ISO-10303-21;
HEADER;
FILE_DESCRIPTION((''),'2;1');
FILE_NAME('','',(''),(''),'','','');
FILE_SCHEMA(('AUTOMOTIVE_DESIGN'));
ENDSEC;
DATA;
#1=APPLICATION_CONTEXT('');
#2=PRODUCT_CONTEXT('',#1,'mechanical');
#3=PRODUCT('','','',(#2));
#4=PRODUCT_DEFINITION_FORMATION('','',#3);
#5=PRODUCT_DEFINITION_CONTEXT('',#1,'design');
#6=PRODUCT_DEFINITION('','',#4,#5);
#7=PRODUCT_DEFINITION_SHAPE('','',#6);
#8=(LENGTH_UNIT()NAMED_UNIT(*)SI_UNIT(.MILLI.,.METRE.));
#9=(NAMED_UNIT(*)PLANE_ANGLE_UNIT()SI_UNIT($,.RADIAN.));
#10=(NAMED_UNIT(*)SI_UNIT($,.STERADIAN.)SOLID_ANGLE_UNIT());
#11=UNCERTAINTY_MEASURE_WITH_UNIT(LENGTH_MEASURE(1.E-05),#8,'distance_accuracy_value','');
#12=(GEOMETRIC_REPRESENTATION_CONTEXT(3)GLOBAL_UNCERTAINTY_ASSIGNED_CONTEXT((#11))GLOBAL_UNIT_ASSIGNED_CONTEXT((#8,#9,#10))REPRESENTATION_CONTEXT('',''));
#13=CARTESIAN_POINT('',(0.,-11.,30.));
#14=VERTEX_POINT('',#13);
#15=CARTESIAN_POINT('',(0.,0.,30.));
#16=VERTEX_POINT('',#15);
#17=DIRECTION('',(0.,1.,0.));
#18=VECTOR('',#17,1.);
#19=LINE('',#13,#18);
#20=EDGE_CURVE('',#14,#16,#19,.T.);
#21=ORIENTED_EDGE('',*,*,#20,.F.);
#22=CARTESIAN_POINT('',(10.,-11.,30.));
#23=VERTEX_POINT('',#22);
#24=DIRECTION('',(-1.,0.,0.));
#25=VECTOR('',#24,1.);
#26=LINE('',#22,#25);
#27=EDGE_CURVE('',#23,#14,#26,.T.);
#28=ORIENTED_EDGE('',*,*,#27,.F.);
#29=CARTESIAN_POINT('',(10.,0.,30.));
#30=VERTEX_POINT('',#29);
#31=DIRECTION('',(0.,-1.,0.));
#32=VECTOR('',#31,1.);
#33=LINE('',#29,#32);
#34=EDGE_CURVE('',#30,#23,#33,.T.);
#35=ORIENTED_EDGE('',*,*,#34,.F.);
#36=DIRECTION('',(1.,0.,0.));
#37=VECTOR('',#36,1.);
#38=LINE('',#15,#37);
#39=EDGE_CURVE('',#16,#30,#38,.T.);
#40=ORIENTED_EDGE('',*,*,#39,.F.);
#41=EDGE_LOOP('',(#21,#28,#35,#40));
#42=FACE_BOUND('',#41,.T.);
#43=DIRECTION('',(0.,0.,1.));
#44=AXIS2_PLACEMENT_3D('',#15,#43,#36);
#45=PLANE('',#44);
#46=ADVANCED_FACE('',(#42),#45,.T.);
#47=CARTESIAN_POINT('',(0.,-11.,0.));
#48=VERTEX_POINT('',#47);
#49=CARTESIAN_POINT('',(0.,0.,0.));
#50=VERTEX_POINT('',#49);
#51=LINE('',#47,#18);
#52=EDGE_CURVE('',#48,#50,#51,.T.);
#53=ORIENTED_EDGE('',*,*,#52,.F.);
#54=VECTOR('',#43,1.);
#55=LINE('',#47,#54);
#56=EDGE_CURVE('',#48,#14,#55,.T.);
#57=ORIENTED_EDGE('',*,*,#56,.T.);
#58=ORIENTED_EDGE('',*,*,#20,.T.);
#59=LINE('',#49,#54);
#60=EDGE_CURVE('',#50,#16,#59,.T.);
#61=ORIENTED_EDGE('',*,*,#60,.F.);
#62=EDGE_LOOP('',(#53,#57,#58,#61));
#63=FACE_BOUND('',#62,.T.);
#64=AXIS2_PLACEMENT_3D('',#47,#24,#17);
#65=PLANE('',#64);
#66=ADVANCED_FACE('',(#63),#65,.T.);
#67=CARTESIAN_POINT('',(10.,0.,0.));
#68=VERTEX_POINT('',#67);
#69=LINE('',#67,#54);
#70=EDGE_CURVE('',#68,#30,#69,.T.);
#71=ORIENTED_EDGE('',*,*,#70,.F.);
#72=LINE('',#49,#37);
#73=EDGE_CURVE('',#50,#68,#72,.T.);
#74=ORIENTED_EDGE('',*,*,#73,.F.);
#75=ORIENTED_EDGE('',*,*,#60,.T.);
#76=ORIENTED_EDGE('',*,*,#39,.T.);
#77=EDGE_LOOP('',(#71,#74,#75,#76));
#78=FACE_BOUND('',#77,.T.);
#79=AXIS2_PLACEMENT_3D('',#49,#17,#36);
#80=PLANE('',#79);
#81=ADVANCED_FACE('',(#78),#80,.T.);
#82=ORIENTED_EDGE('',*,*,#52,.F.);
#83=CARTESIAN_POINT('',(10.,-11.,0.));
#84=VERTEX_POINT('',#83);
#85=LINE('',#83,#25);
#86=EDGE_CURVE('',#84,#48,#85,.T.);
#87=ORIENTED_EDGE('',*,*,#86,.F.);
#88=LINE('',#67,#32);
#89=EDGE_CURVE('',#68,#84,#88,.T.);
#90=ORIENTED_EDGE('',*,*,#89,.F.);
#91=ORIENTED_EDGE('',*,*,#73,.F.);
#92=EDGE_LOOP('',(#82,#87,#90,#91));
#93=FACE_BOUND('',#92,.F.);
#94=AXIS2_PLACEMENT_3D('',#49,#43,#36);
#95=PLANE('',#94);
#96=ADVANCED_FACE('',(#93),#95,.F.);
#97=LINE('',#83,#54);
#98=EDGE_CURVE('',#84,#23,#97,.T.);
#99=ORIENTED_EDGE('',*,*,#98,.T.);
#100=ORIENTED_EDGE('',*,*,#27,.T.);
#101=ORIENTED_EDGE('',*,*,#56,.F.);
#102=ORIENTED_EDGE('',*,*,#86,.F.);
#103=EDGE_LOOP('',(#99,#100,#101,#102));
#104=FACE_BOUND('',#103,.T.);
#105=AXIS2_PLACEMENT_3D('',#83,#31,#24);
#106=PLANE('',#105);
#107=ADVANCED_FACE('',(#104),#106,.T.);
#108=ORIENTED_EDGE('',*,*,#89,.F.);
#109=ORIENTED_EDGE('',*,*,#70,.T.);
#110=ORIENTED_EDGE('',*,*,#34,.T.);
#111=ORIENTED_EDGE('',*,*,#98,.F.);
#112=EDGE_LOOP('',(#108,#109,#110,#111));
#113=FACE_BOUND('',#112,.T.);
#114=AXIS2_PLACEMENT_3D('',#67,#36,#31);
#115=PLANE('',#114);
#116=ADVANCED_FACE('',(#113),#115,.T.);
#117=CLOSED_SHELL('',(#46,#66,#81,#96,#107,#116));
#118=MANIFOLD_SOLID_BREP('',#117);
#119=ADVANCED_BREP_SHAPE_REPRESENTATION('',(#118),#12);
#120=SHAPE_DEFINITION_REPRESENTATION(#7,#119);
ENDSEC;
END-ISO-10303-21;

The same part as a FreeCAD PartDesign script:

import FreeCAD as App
import Part
import Sketcher


def add_polygon(sketch, points):
    """Adds a closed chain of lines whose ends are joined by coincident constraints."""
    first, n = sketch.GeometryCount, len(points)
    for a, b in zip(points, points[1:] + points[:1]):
        sketch.addGeometry(Part.LineSegment(App.Vector(*a, 0), App.Vector(*b, 0)), False)
    for i in range(n):
        sketch.addConstraint(Sketcher.Constraint("Coincident", first + i, 2, first + (i + 1) % n, 1))

doc = App.newDocument("Part")
body = doc.addObject("PartDesign::Body", "Body")

sketch1 = body.newObject("Sketcher::SketchObject", "Sketch")
sketch1.AttachmentSupport = (doc.getObject("XY_Plane"), [""])
sketch1.MapMode = "FlatFace"
add_polygon(sketch1, [(10, 0), (0, 0), (0, -11), (10, -11)])
sketch1.addConstraint(Sketcher.Constraint("Horizontal", 0))
sketch1.addConstraint(Sketcher.Constraint("Vertical", 1))
sketch1.addConstraint(Sketcher.Constraint("Horizontal", 2))
sketch1.addConstraint(Sketcher.Constraint("Vertical", 3))
sketch1.addConstraint(Sketcher.Constraint("Coincident", 0, 2, -1, 1))
sketch1.addConstraint(Sketcher.Constraint("DistanceX", 0, 2, 0, 1, 10.0))
sketch1.addConstraint(Sketcher.Constraint("DistanceY", 1, 2, 1, 1, 11.0))
pad1 = body.newObject("PartDesign::Pad", "Pad")
pad1.Profile = sketch1
pad1.Length = 30

doc.recompute()
